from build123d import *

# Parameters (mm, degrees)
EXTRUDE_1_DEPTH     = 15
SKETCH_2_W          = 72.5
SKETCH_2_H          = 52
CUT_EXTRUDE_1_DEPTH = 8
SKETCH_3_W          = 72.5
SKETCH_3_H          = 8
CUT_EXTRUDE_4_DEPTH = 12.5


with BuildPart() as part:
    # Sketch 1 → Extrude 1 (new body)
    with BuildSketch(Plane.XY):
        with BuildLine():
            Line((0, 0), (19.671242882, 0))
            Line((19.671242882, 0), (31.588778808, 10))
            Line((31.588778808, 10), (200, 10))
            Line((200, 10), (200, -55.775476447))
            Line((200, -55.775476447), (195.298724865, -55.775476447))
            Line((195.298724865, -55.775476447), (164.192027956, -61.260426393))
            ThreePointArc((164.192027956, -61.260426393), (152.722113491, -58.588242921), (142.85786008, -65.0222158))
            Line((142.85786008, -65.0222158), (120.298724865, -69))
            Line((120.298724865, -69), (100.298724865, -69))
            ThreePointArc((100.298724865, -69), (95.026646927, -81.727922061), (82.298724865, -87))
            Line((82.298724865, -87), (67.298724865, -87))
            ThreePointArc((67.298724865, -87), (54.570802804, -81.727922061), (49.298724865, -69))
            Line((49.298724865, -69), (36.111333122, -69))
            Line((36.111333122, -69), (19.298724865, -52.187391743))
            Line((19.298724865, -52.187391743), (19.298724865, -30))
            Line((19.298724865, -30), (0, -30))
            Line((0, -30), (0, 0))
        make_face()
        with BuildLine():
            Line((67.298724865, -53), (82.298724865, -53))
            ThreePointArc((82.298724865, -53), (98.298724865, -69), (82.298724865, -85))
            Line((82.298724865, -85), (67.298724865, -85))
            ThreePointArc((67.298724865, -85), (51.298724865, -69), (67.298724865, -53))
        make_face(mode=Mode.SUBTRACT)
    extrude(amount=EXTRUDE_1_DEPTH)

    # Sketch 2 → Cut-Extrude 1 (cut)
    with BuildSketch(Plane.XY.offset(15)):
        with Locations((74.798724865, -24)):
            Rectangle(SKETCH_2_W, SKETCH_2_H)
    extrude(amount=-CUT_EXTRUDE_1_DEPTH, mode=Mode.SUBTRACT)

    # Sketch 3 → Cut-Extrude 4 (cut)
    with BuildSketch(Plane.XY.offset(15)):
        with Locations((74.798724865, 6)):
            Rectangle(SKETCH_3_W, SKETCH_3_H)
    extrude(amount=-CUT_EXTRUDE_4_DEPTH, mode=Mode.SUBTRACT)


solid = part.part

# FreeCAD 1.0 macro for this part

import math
import FreeCAD as App
import Part
import Sketcher
from FreeCAD import Vector
Q = App.Units.Quantity

doc = App.newDocument("Part")
body = doc.addObject("PartDesign::Body", "Body")

sketch1 = body.newObject("Sketcher::SketchObject", "Sketch")
sketch1.AttachmentSupport = (doc.getObject("XY_Plane"), [""])
sketch1.MapMode = "FlatFace"
sketch1.addGeometry(Part.LineSegment(Vector(19.7, 0, 0), Vector(0, 0, 0)), False)
sketch1.addGeometry(Part.LineSegment(Vector(0, 0, 0), Vector(0, -30, 0)), False)
sketch1.addGeometry(Part.LineSegment(Vector(0, -30, 0), Vector(19.3, -30, 0)), False)
sketch1.addGeometry(Part.LineSegment(Vector(19.3, -30, 0), Vector(19.3, -52.2, 0)), False)
sketch1.addGeometry(Part.LineSegment(Vector(19.3, -52.2, 0), Vector(36.1, -69, 0)), False)
sketch1.addGeometry(Part.LineSegment(Vector(36.1, -69, 0), Vector(49.3, -69, 0)), False)
sketch1.addGeometry(Part.ArcOfCircle(Part.Circle(Vector(67.3, -69, 0), Vector(0, 0, 1), 18), math.radians(-180), math.radians(-90)), False)
sketch1.addGeometry(Part.LineSegment(Vector(67.3, -87, 0), Vector(82.3, -87, 0)), False)
sketch1.addGeometry(Part.ArcOfCircle(Part.Circle(Vector(82.3, -69, 0), Vector(0, 0, 1), 18), math.radians(-90), math.radians(0)), False)
sketch1.addGeometry(Part.LineSegment(Vector(100.3, -69, 0), Vector(120.3, -69, 0)), False)
sketch1.addGeometry(Part.LineSegment(Vector(120.3, -69, 0), Vector(142.9, -65, 0)), False)
sketch1.addGeometry(Part.ArcOfCircle(Part.Circle(Vector(155.3, -73.4, 0), Vector(0, 0, 1), 15), math.radians(54), math.radians(146)), False)
sketch1.addGeometry(Part.LineSegment(Vector(164.2, -61.3, 0), Vector(195.3, -55.8, 0)), False)
sketch1.addGeometry(Part.LineSegment(Vector(195.3, -55.8, 0), Vector(200, -55.8, 0)), False)
sketch1.addGeometry(Part.LineSegment(Vector(200, -55.8, 0), Vector(200, 10, 0)), False)
sketch1.addGeometry(Part.LineSegment(Vector(200, 10, 0), Vector(31.6, 10, 0)), False)
sketch1.addGeometry(Part.LineSegment(Vector(31.6, 10, 0), Vector(19.7, 0, 0)), False)
sketch1.addGeometry(Part.LineSegment(Vector(67.3, -53, 0), Vector(82.3, -53, 0)), False)
sketch1.addGeometry(Part.ArcOfCircle(Part.Circle(Vector(82.3, -69, 0), Vector(0, 0, 1), 16), math.radians(-90), math.radians(90)), False)
sketch1.addGeometry(Part.LineSegment(Vector(82.3, -85, 0), Vector(67.3, -85, 0)), False)
sketch1.addGeometry(Part.ArcOfCircle(Part.Circle(Vector(67.3, -69, 0), Vector(0, 0, 1), 16), math.radians(90), math.radians(270)), False)
sketch1.addConstraint(Sketcher.Constraint("Coincident", 0, 2, 1, 1))
sketch1.addConstraint(Sketcher.Constraint("Coincident", 1, 2, 2, 1))
sketch1.addConstraint(Sketcher.Constraint("Coincident", 2, 2, 3, 1))
sketch1.addConstraint(Sketcher.Constraint("Coincident", 3, 2, 4, 1))
sketch1.addConstraint(Sketcher.Constraint("Coincident", 4, 2, 5, 1))
sketch1.addConstraint(Sketcher.Constraint("Coincident", 5, 2, 6, 1))
sketch1.addConstraint(Sketcher.Constraint("Tangent", 6, 2, 7, 1))
sketch1.addConstraint(Sketcher.Constraint("Tangent", 7, 2, 8, 1))
sketch1.addConstraint(Sketcher.Constraint("Coincident", 8, 2, 9, 1))
sketch1.addConstraint(Sketcher.Constraint("Coincident", 9, 2, 10, 1))
sketch1.addConstraint(Sketcher.Constraint("Coincident", 10, 2, 11, 2))
sketch1.addConstraint(Sketcher.Constraint("Coincident", 11, 1, 12, 1))
sketch1.addConstraint(Sketcher.Constraint("Coincident", 12, 2, 13, 1))
sketch1.addConstraint(Sketcher.Constraint("Coincident", 13, 2, 14, 1))
sketch1.addConstraint(Sketcher.Constraint("Coincident", 14, 2, 15, 1))
sketch1.addConstraint(Sketcher.Constraint("Coincident", 15, 2, 16, 1))
sketch1.addConstraint(Sketcher.Constraint("Coincident", 16, 2, 0, 1))
sketch1.addConstraint(Sketcher.Constraint("Tangent", 17, 2, 18, 2))
sketch1.addConstraint(Sketcher.Constraint("Tangent", 18, 1, 19, 1))
sketch1.addConstraint(Sketcher.Constraint("Tangent", 19, 2, 20, 2))
sketch1.addConstraint(Sketcher.Constraint("Tangent", 20, 1, 17, 1))
sketch1.addConstraint(Sketcher.Constraint("Horizontal", 0))
sketch1.addConstraint(Sketcher.Constraint("Vertical", 1))
sketch1.addConstraint(Sketcher.Constraint("Horizontal", 2))
sketch1.addConstraint(Sketcher.Constraint("Vertical", 3))
sketch1.addConstraint(Sketcher.Constraint("Horizontal", 5))
sketch1.addConstraint(Sketcher.Constraint("Horizontal", 7))
sketch1.addConstraint(Sketcher.Constraint("Horizontal", 9))
sketch1.addConstraint(Sketcher.Constraint("Horizontal", 13))
sketch1.addConstraint(Sketcher.Constraint("Vertical", 14))
sketch1.addConstraint(Sketcher.Constraint("Horizontal", 15))
sketch1.addConstraint(Sketcher.Constraint("Horizontal", 17))
sketch1.addConstraint(Sketcher.Constraint("Horizontal", 19))
sketch1.addConstraint(Sketcher.Constraint("Coincident", 0, 2, -1, 1))
sketch1.addConstraint(Sketcher.Constraint("Coincident", 18, 3, 8, 3))
sketch1.addConstraint(Sketcher.Constraint("Coincident", 20, 3, 6, 3))
sketch1.addConstraint(Sketcher.Constraint("Parallel", 10, 12))
sketch1.addConstraint(Sketcher.Constraint("Horizontal", 20, 3, 4, 2))
sketch1.addConstraint(Sketcher.Constraint("Horizontal", 5, 2, 8, 2))
sketch1.addConstraint(Sketcher.Constraint("Radius", 6, 18.0))
sketch1.addConstraint(Sketcher.Constraint("Radius", 11, 15.0))
sketch1.addConstraint(Sketcher.Constraint("Radius", 18, 16.0))
sketch1.addConstraint(Sketcher.Constraint("DistanceX", 7, 1, 7, 2, 15.0))
sketch1.addConstraint(Sketcher.Constraint("DistanceX", 9, 1, 9, 2, 20.0))
sketch1.addConstraint(Sketcher.Constraint("DistanceY", 1, 2, 1, 1, 30.0))
sketch1.addConstraint(Sketcher.Constraint("Angle", 4, Q("-45 deg")))
sketch1.addConstraint(Sketcher.Constraint("Angle", 10, Q("10 deg")))
sketch1.addConstraint(Sketcher.Constraint("Angle", 16, Q("-140 deg")))
sketch1.addConstraint(Sketcher.Constraint("DistanceY", 6, 3, -1, 1, 69.0))
sketch1.addConstraint(Sketcher.Constraint("DistanceX", -1, 1, 13, 2, 200.0))
sketch1.addConstraint(Sketcher.Constraint("DistanceY", -1, 1, 14, 2, 10.0))
sketch1.addConstraint(Sketcher.Constraint("DistanceX", 2, 2, 20, 3, 48.0))
sketch1.addConstraint(Sketcher.Constraint("DistanceX", 9, 2, 12, 2, 75.0))
sketch1.addConstraint(Sketcher.Constraint("DistanceX", 5, 1, 5, 2, 13.187392))
sketch1.addConstraint(Sketcher.Constraint("DistanceX", 15, 2, 15, 1, 168.411221))
sketch1.addConstraint(Sketcher.Constraint("DistanceX", 2, 1, 2, 2, 19.298725))
sketch1.addConstraint(Sketcher.Constraint("DistanceY", 14, 1, 14, 2, 65.775476))
sketch1.addConstraint(Sketcher.Constraint("DistanceY", 11, 3, -1, 1, 73.360359))
sketch1.addConstraint(Sketcher.Constraint("DistanceX", -1, 1, 10, 2, 142.85786))
pad1 = body.newObject("PartDesign::Pad", "Pad")
pad1.Profile = sketch1
pad1.Length = 15

sketch2 = body.newObject("Sketcher::SketchObject", "Sketch001")
sketch2.AttachmentSupport = (doc.getObject("XY_Plane"), [""])
sketch2.MapMode = "FlatFace"
sketch2.AttachmentOffset = App.Placement(Vector(0, 0, 15), App.Rotation())
sketch2.addGeometry(Part.LineSegment(Vector(39, 2, 0), Vector(39, -50, 0)), False)
sketch2.addGeometry(Part.LineSegment(Vector(39, -50, 0), Vector(111, -50, 0)), False)
sketch2.addGeometry(Part.LineSegment(Vector(111, -50, 0), Vector(111, 2, 0)), False)
sketch2.addGeometry(Part.LineSegment(Vector(111, 2, 0), Vector(39, 2, 0)), False)
sketch2.addConstraint(Sketcher.Constraint("Coincident", 0, 2, 1, 1))
sketch2.addConstraint(Sketcher.Constraint("Coincident", 1, 2, 2, 1))
sketch2.addConstraint(Sketcher.Constraint("Coincident", 2, 2, 3, 1))
sketch2.addConstraint(Sketcher.Constraint("Coincident", 3, 2, 0, 1))
sketch2.addConstraint(Sketcher.Constraint("Vertical", 0))
sketch2.addConstraint(Sketcher.Constraint("Horizontal", 1))
sketch2.addConstraint(Sketcher.Constraint("Vertical", 2))
sketch2.addConstraint(Sketcher.Constraint("Horizontal", 3))
sketch2.addConstraint(Sketcher.Constraint("DistanceY", 0, 2, 0, 1, 52.0))
sketch2.addConstraint(Sketcher.Constraint("DistanceX", 1, 1, 1, 2, 72.5))
sketch2.addConstraint(Sketcher.Constraint("DistanceY", 0, 2, -1, 1, 50.0))
sketch2.addConstraint(Sketcher.Constraint("DistanceX", -1, 1, 0, 2, 38.548725))
pocket1 = body.newObject("PartDesign::Pocket", "Pocket")
pocket1.Profile = sketch2
pocket1.Length = 8

sketch3 = body.newObject("Sketcher::SketchObject", "Sketch002")
sketch3.AttachmentSupport = (doc.getObject("XY_Plane"), [""])
sketch3.MapMode = "FlatFace"
sketch3.AttachmentOffset = App.Placement(Vector(0, 0, 15), App.Rotation())
sketch3.addGeometry(Part.LineSegment(Vector(39, 10, 0), Vector(39, 2, 0)), False)
sketch3.addGeometry(Part.LineSegment(Vector(39, 2, 0), Vector(111, 2, 0)), False)
sketch3.addGeometry(Part.LineSegment(Vector(111, 2, 0), Vector(111, 10, 0)), False)
sketch3.addGeometry(Part.LineSegment(Vector(111, 10, 0), Vector(39, 10, 0)), False)
sketch3.addConstraint(Sketcher.Constraint("Coincident", 0, 2, 1, 1))
sketch3.addConstraint(Sketcher.Constraint("Coincident", 1, 2, 2, 1))
sketch3.addConstraint(Sketcher.Constraint("Coincident", 2, 2, 3, 1))
sketch3.addConstraint(Sketcher.Constraint("Coincident", 3, 2, 0, 1))
sketch3.addConstraint(Sketcher.Constraint("Vertical", 0))
sketch3.addConstraint(Sketcher.Constraint("Horizontal", 1))
sketch3.addConstraint(Sketcher.Constraint("Vertical", 2))
sketch3.addConstraint(Sketcher.Constraint("Horizontal", 3))
sketch3.addConstraint(Sketcher.Constraint("DistanceY", 0, 2, 0, 1, 8.0))
sketch3.addConstraint(Sketcher.Constraint("DistanceX", 1, 1, 1, 2, 72.5))
sketch3.addConstraint(Sketcher.Constraint("DistanceY", -1, 1, 0, 2, 2.0))
sketch3.addConstraint(Sketcher.Constraint("DistanceX", -1, 1, 0, 2, 38.548725))
pocket2 = body.newObject("PartDesign::Pocket", "Pocket001")
pocket2.Profile = sketch3
pocket2.Length = 12.5

doc.recompute()
